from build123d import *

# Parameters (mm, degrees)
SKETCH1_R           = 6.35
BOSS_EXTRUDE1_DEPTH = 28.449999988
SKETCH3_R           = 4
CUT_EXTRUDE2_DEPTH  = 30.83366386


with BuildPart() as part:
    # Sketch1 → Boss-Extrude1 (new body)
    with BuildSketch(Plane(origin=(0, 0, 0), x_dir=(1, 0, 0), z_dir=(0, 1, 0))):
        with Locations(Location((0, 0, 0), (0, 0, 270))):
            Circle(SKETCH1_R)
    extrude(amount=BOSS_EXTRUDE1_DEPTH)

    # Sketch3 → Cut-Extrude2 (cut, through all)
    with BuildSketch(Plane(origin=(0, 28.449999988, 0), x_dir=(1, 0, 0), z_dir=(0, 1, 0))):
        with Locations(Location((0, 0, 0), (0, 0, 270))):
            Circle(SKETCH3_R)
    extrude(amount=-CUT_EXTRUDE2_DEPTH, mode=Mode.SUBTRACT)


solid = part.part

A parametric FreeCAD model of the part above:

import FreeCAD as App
import Part
import Sketcher

doc = App.newDocument("Part")
body = doc.addObject("PartDesign::Body", "Body")

sketch1 = body.newObject("Sketcher::SketchObject", "Sketch")
sketch1.AttachmentSupport = (doc.getObject("XZ_Plane"), [""])
sketch1.MapMode = "FlatFace"
sketch1.addGeometry(Part.Circle(App.Vector(0, 0, 0), App.Vector(0, 0, 1), 6), False)
sketch1.addConstraint([
    Sketcher.Constraint("Coincident", 0, 3, -1, 1),
    Sketcher.Constraint("Diameter", 0, 12.7),
])
pad1 = body.newObject("PartDesign::Pad", "Pad")
pad1.Profile = sketch1
pad1.Length = 28.45
pad1.Reversed = True

sketch2 = body.newObject("Sketcher::SketchObject", "Sketch001")
sketch2.AttachmentSupport = (doc.getObject("XZ_Plane"), [""])
sketch2.MapMode = "FlatFace"
sketch2.AttachmentOffset = App.Placement(App.Vector(0, 0, -28.45), App.Rotation())
sketch2.addGeometry(Part.Circle(App.Vector(0, 0, 0), App.Vector(0, 0, 1), 4), False)
sketch2.addConstraint([
    Sketcher.Constraint("Coincident", 0, 3, -1, 1),
    Sketcher.Constraint("Diameter", 0, 8.0),
])
pocket1 = body.newObject("PartDesign::Pocket", "Pocket")
pocket1.Profile = sketch2
pocket1.Type = "ThroughAll"
pocket1.Reversed = True

doc.recompute()
